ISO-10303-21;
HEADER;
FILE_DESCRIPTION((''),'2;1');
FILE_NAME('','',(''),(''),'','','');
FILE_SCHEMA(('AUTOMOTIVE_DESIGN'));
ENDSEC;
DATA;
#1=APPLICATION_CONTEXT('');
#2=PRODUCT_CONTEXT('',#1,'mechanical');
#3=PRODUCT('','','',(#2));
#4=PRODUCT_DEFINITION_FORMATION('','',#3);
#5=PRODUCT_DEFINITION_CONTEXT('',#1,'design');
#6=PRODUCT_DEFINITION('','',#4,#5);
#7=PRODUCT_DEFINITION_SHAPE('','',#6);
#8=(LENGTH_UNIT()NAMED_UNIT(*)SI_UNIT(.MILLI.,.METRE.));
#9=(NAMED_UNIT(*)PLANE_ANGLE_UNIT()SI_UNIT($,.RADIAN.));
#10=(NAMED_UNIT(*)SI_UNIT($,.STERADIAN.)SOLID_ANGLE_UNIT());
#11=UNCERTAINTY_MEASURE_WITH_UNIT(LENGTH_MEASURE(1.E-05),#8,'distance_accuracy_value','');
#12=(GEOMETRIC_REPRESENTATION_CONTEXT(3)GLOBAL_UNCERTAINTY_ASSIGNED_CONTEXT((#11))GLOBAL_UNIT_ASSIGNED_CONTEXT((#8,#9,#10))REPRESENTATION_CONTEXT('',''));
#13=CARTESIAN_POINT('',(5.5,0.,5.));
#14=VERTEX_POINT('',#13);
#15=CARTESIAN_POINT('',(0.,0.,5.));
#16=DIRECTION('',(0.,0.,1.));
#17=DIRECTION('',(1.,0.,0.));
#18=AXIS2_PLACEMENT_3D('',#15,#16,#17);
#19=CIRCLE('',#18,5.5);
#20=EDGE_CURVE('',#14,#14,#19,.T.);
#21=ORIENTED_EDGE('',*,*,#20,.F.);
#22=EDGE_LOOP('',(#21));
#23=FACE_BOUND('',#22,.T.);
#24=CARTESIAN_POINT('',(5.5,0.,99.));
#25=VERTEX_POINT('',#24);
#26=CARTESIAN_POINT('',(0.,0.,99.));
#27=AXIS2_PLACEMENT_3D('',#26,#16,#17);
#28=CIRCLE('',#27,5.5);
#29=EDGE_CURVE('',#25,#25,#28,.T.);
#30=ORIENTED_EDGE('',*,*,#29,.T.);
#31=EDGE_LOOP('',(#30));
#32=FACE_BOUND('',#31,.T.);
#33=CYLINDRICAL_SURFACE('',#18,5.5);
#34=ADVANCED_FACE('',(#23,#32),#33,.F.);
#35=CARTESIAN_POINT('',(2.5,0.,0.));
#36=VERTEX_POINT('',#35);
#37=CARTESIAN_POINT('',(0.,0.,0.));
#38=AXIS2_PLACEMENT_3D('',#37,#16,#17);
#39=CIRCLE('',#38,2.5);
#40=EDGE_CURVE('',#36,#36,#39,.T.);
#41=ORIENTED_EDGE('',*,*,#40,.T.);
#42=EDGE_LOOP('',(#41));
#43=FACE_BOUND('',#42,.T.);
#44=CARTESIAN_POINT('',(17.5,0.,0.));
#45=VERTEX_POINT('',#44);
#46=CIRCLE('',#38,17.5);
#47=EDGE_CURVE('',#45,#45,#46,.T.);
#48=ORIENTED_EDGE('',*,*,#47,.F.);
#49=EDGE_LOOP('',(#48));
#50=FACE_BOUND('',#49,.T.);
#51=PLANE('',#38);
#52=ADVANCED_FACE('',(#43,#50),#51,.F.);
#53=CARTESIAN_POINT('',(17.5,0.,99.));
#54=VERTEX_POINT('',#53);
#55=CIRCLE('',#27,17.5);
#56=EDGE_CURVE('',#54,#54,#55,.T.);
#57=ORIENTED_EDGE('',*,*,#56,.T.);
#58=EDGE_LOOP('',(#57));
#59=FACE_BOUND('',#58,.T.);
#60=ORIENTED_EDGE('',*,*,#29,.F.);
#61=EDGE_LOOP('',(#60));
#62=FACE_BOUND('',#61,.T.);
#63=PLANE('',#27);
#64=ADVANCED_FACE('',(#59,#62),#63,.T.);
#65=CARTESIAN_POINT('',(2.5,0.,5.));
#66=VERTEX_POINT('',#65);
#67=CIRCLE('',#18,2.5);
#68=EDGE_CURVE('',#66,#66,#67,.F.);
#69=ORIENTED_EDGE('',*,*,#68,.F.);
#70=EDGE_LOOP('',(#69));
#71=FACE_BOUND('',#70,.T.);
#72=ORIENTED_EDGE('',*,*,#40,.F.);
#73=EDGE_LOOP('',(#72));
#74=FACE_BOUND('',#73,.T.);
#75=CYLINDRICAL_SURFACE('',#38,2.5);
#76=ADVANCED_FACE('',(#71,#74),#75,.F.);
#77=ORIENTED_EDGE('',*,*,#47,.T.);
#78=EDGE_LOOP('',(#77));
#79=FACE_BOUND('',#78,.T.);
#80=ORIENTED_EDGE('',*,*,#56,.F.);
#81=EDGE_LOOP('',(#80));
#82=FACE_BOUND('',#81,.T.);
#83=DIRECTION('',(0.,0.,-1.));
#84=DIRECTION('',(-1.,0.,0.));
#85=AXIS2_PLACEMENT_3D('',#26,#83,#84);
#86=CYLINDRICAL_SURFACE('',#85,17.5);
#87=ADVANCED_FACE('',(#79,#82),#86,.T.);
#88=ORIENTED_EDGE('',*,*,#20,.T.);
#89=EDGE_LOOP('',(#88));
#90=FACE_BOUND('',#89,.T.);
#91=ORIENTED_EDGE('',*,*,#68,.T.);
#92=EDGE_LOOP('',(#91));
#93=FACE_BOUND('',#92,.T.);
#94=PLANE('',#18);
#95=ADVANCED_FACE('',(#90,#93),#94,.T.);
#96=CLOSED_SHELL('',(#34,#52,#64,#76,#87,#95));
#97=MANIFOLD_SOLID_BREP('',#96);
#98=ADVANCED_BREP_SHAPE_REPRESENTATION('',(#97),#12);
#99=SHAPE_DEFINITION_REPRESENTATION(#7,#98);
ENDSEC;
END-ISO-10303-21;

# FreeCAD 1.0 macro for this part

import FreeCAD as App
import Part
import Sketcher
from FreeCAD import Vector
Q = App.Units.Quantity

doc = App.newDocument("Part")
body = doc.addObject("PartDesign::Body", "Body")

sketch1 = body.newObject("Sketcher::SketchObject", "Sketch")
sketch1.AttachmentSupport = (doc.getObject("XY_Plane"), [""])
sketch1.MapMode = "FlatFace"
sketch1.addGeometry(Part.Circle(Vector(0, 0, 0), Vector(0, 0, 1), 18), False)
sketch1.addConstraint([
    Sketcher.Constraint("Coincident", 0, 3, -1, 1),
    Sketcher.Constraint("Diameter", 0, Q("35 mm")),
])
pad1 = body.newObject("PartDesign::Pad", "Pad")
pad1.Profile = sketch1
pad1.Length = 99

sketch2 = body.newObject("Sketcher::SketchObject", "Sketch001")
sketch2.AttachmentSupport = (doc.getObject("XY_Plane"), [""])
sketch2.MapMode = "FlatFace"
sketch2.AttachmentOffset = App.Placement(Vector(0, 0, 99), App.Rotation())
sketch2.addGeometry(Part.Circle(Vector(0, 0, 0), Vector(0, 0, 1), 2.5), False)
sketch2.addConstraint([
    Sketcher.Constraint("Coincident", 0, 3, -1, 1),
    Sketcher.Constraint("Diameter", 0, Q("5 mm")),
])
pocket1 = body.newObject("PartDesign::Pocket", "Pocket")
pocket1.Profile = sketch2
pocket1.Type = "ThroughAll"

sketch3 = body.newObject("Sketcher::SketchObject", "Sketch002")
sketch3.AttachmentSupport = (doc.getObject("XY_Plane"), [""])
sketch3.MapMode = "FlatFace"
sketch3.AttachmentOffset = App.Placement(Vector(0, 0, 99), App.Rotation())
sketch3.addGeometry(Part.Circle(Vector(0, 0, 0), Vector(0, 0, 1), 6), False)
sketch3.addConstraint([
    Sketcher.Constraint("Coincident", 0, 3, -1, 1),
    Sketcher.Constraint("Diameter", 0, Q("11 mm")),
])
pocket2 = body.newObject("PartDesign::Pocket", "Pocket001")
pocket2.Profile = sketch3
pocket2.Length = 94

doc.recompute()
